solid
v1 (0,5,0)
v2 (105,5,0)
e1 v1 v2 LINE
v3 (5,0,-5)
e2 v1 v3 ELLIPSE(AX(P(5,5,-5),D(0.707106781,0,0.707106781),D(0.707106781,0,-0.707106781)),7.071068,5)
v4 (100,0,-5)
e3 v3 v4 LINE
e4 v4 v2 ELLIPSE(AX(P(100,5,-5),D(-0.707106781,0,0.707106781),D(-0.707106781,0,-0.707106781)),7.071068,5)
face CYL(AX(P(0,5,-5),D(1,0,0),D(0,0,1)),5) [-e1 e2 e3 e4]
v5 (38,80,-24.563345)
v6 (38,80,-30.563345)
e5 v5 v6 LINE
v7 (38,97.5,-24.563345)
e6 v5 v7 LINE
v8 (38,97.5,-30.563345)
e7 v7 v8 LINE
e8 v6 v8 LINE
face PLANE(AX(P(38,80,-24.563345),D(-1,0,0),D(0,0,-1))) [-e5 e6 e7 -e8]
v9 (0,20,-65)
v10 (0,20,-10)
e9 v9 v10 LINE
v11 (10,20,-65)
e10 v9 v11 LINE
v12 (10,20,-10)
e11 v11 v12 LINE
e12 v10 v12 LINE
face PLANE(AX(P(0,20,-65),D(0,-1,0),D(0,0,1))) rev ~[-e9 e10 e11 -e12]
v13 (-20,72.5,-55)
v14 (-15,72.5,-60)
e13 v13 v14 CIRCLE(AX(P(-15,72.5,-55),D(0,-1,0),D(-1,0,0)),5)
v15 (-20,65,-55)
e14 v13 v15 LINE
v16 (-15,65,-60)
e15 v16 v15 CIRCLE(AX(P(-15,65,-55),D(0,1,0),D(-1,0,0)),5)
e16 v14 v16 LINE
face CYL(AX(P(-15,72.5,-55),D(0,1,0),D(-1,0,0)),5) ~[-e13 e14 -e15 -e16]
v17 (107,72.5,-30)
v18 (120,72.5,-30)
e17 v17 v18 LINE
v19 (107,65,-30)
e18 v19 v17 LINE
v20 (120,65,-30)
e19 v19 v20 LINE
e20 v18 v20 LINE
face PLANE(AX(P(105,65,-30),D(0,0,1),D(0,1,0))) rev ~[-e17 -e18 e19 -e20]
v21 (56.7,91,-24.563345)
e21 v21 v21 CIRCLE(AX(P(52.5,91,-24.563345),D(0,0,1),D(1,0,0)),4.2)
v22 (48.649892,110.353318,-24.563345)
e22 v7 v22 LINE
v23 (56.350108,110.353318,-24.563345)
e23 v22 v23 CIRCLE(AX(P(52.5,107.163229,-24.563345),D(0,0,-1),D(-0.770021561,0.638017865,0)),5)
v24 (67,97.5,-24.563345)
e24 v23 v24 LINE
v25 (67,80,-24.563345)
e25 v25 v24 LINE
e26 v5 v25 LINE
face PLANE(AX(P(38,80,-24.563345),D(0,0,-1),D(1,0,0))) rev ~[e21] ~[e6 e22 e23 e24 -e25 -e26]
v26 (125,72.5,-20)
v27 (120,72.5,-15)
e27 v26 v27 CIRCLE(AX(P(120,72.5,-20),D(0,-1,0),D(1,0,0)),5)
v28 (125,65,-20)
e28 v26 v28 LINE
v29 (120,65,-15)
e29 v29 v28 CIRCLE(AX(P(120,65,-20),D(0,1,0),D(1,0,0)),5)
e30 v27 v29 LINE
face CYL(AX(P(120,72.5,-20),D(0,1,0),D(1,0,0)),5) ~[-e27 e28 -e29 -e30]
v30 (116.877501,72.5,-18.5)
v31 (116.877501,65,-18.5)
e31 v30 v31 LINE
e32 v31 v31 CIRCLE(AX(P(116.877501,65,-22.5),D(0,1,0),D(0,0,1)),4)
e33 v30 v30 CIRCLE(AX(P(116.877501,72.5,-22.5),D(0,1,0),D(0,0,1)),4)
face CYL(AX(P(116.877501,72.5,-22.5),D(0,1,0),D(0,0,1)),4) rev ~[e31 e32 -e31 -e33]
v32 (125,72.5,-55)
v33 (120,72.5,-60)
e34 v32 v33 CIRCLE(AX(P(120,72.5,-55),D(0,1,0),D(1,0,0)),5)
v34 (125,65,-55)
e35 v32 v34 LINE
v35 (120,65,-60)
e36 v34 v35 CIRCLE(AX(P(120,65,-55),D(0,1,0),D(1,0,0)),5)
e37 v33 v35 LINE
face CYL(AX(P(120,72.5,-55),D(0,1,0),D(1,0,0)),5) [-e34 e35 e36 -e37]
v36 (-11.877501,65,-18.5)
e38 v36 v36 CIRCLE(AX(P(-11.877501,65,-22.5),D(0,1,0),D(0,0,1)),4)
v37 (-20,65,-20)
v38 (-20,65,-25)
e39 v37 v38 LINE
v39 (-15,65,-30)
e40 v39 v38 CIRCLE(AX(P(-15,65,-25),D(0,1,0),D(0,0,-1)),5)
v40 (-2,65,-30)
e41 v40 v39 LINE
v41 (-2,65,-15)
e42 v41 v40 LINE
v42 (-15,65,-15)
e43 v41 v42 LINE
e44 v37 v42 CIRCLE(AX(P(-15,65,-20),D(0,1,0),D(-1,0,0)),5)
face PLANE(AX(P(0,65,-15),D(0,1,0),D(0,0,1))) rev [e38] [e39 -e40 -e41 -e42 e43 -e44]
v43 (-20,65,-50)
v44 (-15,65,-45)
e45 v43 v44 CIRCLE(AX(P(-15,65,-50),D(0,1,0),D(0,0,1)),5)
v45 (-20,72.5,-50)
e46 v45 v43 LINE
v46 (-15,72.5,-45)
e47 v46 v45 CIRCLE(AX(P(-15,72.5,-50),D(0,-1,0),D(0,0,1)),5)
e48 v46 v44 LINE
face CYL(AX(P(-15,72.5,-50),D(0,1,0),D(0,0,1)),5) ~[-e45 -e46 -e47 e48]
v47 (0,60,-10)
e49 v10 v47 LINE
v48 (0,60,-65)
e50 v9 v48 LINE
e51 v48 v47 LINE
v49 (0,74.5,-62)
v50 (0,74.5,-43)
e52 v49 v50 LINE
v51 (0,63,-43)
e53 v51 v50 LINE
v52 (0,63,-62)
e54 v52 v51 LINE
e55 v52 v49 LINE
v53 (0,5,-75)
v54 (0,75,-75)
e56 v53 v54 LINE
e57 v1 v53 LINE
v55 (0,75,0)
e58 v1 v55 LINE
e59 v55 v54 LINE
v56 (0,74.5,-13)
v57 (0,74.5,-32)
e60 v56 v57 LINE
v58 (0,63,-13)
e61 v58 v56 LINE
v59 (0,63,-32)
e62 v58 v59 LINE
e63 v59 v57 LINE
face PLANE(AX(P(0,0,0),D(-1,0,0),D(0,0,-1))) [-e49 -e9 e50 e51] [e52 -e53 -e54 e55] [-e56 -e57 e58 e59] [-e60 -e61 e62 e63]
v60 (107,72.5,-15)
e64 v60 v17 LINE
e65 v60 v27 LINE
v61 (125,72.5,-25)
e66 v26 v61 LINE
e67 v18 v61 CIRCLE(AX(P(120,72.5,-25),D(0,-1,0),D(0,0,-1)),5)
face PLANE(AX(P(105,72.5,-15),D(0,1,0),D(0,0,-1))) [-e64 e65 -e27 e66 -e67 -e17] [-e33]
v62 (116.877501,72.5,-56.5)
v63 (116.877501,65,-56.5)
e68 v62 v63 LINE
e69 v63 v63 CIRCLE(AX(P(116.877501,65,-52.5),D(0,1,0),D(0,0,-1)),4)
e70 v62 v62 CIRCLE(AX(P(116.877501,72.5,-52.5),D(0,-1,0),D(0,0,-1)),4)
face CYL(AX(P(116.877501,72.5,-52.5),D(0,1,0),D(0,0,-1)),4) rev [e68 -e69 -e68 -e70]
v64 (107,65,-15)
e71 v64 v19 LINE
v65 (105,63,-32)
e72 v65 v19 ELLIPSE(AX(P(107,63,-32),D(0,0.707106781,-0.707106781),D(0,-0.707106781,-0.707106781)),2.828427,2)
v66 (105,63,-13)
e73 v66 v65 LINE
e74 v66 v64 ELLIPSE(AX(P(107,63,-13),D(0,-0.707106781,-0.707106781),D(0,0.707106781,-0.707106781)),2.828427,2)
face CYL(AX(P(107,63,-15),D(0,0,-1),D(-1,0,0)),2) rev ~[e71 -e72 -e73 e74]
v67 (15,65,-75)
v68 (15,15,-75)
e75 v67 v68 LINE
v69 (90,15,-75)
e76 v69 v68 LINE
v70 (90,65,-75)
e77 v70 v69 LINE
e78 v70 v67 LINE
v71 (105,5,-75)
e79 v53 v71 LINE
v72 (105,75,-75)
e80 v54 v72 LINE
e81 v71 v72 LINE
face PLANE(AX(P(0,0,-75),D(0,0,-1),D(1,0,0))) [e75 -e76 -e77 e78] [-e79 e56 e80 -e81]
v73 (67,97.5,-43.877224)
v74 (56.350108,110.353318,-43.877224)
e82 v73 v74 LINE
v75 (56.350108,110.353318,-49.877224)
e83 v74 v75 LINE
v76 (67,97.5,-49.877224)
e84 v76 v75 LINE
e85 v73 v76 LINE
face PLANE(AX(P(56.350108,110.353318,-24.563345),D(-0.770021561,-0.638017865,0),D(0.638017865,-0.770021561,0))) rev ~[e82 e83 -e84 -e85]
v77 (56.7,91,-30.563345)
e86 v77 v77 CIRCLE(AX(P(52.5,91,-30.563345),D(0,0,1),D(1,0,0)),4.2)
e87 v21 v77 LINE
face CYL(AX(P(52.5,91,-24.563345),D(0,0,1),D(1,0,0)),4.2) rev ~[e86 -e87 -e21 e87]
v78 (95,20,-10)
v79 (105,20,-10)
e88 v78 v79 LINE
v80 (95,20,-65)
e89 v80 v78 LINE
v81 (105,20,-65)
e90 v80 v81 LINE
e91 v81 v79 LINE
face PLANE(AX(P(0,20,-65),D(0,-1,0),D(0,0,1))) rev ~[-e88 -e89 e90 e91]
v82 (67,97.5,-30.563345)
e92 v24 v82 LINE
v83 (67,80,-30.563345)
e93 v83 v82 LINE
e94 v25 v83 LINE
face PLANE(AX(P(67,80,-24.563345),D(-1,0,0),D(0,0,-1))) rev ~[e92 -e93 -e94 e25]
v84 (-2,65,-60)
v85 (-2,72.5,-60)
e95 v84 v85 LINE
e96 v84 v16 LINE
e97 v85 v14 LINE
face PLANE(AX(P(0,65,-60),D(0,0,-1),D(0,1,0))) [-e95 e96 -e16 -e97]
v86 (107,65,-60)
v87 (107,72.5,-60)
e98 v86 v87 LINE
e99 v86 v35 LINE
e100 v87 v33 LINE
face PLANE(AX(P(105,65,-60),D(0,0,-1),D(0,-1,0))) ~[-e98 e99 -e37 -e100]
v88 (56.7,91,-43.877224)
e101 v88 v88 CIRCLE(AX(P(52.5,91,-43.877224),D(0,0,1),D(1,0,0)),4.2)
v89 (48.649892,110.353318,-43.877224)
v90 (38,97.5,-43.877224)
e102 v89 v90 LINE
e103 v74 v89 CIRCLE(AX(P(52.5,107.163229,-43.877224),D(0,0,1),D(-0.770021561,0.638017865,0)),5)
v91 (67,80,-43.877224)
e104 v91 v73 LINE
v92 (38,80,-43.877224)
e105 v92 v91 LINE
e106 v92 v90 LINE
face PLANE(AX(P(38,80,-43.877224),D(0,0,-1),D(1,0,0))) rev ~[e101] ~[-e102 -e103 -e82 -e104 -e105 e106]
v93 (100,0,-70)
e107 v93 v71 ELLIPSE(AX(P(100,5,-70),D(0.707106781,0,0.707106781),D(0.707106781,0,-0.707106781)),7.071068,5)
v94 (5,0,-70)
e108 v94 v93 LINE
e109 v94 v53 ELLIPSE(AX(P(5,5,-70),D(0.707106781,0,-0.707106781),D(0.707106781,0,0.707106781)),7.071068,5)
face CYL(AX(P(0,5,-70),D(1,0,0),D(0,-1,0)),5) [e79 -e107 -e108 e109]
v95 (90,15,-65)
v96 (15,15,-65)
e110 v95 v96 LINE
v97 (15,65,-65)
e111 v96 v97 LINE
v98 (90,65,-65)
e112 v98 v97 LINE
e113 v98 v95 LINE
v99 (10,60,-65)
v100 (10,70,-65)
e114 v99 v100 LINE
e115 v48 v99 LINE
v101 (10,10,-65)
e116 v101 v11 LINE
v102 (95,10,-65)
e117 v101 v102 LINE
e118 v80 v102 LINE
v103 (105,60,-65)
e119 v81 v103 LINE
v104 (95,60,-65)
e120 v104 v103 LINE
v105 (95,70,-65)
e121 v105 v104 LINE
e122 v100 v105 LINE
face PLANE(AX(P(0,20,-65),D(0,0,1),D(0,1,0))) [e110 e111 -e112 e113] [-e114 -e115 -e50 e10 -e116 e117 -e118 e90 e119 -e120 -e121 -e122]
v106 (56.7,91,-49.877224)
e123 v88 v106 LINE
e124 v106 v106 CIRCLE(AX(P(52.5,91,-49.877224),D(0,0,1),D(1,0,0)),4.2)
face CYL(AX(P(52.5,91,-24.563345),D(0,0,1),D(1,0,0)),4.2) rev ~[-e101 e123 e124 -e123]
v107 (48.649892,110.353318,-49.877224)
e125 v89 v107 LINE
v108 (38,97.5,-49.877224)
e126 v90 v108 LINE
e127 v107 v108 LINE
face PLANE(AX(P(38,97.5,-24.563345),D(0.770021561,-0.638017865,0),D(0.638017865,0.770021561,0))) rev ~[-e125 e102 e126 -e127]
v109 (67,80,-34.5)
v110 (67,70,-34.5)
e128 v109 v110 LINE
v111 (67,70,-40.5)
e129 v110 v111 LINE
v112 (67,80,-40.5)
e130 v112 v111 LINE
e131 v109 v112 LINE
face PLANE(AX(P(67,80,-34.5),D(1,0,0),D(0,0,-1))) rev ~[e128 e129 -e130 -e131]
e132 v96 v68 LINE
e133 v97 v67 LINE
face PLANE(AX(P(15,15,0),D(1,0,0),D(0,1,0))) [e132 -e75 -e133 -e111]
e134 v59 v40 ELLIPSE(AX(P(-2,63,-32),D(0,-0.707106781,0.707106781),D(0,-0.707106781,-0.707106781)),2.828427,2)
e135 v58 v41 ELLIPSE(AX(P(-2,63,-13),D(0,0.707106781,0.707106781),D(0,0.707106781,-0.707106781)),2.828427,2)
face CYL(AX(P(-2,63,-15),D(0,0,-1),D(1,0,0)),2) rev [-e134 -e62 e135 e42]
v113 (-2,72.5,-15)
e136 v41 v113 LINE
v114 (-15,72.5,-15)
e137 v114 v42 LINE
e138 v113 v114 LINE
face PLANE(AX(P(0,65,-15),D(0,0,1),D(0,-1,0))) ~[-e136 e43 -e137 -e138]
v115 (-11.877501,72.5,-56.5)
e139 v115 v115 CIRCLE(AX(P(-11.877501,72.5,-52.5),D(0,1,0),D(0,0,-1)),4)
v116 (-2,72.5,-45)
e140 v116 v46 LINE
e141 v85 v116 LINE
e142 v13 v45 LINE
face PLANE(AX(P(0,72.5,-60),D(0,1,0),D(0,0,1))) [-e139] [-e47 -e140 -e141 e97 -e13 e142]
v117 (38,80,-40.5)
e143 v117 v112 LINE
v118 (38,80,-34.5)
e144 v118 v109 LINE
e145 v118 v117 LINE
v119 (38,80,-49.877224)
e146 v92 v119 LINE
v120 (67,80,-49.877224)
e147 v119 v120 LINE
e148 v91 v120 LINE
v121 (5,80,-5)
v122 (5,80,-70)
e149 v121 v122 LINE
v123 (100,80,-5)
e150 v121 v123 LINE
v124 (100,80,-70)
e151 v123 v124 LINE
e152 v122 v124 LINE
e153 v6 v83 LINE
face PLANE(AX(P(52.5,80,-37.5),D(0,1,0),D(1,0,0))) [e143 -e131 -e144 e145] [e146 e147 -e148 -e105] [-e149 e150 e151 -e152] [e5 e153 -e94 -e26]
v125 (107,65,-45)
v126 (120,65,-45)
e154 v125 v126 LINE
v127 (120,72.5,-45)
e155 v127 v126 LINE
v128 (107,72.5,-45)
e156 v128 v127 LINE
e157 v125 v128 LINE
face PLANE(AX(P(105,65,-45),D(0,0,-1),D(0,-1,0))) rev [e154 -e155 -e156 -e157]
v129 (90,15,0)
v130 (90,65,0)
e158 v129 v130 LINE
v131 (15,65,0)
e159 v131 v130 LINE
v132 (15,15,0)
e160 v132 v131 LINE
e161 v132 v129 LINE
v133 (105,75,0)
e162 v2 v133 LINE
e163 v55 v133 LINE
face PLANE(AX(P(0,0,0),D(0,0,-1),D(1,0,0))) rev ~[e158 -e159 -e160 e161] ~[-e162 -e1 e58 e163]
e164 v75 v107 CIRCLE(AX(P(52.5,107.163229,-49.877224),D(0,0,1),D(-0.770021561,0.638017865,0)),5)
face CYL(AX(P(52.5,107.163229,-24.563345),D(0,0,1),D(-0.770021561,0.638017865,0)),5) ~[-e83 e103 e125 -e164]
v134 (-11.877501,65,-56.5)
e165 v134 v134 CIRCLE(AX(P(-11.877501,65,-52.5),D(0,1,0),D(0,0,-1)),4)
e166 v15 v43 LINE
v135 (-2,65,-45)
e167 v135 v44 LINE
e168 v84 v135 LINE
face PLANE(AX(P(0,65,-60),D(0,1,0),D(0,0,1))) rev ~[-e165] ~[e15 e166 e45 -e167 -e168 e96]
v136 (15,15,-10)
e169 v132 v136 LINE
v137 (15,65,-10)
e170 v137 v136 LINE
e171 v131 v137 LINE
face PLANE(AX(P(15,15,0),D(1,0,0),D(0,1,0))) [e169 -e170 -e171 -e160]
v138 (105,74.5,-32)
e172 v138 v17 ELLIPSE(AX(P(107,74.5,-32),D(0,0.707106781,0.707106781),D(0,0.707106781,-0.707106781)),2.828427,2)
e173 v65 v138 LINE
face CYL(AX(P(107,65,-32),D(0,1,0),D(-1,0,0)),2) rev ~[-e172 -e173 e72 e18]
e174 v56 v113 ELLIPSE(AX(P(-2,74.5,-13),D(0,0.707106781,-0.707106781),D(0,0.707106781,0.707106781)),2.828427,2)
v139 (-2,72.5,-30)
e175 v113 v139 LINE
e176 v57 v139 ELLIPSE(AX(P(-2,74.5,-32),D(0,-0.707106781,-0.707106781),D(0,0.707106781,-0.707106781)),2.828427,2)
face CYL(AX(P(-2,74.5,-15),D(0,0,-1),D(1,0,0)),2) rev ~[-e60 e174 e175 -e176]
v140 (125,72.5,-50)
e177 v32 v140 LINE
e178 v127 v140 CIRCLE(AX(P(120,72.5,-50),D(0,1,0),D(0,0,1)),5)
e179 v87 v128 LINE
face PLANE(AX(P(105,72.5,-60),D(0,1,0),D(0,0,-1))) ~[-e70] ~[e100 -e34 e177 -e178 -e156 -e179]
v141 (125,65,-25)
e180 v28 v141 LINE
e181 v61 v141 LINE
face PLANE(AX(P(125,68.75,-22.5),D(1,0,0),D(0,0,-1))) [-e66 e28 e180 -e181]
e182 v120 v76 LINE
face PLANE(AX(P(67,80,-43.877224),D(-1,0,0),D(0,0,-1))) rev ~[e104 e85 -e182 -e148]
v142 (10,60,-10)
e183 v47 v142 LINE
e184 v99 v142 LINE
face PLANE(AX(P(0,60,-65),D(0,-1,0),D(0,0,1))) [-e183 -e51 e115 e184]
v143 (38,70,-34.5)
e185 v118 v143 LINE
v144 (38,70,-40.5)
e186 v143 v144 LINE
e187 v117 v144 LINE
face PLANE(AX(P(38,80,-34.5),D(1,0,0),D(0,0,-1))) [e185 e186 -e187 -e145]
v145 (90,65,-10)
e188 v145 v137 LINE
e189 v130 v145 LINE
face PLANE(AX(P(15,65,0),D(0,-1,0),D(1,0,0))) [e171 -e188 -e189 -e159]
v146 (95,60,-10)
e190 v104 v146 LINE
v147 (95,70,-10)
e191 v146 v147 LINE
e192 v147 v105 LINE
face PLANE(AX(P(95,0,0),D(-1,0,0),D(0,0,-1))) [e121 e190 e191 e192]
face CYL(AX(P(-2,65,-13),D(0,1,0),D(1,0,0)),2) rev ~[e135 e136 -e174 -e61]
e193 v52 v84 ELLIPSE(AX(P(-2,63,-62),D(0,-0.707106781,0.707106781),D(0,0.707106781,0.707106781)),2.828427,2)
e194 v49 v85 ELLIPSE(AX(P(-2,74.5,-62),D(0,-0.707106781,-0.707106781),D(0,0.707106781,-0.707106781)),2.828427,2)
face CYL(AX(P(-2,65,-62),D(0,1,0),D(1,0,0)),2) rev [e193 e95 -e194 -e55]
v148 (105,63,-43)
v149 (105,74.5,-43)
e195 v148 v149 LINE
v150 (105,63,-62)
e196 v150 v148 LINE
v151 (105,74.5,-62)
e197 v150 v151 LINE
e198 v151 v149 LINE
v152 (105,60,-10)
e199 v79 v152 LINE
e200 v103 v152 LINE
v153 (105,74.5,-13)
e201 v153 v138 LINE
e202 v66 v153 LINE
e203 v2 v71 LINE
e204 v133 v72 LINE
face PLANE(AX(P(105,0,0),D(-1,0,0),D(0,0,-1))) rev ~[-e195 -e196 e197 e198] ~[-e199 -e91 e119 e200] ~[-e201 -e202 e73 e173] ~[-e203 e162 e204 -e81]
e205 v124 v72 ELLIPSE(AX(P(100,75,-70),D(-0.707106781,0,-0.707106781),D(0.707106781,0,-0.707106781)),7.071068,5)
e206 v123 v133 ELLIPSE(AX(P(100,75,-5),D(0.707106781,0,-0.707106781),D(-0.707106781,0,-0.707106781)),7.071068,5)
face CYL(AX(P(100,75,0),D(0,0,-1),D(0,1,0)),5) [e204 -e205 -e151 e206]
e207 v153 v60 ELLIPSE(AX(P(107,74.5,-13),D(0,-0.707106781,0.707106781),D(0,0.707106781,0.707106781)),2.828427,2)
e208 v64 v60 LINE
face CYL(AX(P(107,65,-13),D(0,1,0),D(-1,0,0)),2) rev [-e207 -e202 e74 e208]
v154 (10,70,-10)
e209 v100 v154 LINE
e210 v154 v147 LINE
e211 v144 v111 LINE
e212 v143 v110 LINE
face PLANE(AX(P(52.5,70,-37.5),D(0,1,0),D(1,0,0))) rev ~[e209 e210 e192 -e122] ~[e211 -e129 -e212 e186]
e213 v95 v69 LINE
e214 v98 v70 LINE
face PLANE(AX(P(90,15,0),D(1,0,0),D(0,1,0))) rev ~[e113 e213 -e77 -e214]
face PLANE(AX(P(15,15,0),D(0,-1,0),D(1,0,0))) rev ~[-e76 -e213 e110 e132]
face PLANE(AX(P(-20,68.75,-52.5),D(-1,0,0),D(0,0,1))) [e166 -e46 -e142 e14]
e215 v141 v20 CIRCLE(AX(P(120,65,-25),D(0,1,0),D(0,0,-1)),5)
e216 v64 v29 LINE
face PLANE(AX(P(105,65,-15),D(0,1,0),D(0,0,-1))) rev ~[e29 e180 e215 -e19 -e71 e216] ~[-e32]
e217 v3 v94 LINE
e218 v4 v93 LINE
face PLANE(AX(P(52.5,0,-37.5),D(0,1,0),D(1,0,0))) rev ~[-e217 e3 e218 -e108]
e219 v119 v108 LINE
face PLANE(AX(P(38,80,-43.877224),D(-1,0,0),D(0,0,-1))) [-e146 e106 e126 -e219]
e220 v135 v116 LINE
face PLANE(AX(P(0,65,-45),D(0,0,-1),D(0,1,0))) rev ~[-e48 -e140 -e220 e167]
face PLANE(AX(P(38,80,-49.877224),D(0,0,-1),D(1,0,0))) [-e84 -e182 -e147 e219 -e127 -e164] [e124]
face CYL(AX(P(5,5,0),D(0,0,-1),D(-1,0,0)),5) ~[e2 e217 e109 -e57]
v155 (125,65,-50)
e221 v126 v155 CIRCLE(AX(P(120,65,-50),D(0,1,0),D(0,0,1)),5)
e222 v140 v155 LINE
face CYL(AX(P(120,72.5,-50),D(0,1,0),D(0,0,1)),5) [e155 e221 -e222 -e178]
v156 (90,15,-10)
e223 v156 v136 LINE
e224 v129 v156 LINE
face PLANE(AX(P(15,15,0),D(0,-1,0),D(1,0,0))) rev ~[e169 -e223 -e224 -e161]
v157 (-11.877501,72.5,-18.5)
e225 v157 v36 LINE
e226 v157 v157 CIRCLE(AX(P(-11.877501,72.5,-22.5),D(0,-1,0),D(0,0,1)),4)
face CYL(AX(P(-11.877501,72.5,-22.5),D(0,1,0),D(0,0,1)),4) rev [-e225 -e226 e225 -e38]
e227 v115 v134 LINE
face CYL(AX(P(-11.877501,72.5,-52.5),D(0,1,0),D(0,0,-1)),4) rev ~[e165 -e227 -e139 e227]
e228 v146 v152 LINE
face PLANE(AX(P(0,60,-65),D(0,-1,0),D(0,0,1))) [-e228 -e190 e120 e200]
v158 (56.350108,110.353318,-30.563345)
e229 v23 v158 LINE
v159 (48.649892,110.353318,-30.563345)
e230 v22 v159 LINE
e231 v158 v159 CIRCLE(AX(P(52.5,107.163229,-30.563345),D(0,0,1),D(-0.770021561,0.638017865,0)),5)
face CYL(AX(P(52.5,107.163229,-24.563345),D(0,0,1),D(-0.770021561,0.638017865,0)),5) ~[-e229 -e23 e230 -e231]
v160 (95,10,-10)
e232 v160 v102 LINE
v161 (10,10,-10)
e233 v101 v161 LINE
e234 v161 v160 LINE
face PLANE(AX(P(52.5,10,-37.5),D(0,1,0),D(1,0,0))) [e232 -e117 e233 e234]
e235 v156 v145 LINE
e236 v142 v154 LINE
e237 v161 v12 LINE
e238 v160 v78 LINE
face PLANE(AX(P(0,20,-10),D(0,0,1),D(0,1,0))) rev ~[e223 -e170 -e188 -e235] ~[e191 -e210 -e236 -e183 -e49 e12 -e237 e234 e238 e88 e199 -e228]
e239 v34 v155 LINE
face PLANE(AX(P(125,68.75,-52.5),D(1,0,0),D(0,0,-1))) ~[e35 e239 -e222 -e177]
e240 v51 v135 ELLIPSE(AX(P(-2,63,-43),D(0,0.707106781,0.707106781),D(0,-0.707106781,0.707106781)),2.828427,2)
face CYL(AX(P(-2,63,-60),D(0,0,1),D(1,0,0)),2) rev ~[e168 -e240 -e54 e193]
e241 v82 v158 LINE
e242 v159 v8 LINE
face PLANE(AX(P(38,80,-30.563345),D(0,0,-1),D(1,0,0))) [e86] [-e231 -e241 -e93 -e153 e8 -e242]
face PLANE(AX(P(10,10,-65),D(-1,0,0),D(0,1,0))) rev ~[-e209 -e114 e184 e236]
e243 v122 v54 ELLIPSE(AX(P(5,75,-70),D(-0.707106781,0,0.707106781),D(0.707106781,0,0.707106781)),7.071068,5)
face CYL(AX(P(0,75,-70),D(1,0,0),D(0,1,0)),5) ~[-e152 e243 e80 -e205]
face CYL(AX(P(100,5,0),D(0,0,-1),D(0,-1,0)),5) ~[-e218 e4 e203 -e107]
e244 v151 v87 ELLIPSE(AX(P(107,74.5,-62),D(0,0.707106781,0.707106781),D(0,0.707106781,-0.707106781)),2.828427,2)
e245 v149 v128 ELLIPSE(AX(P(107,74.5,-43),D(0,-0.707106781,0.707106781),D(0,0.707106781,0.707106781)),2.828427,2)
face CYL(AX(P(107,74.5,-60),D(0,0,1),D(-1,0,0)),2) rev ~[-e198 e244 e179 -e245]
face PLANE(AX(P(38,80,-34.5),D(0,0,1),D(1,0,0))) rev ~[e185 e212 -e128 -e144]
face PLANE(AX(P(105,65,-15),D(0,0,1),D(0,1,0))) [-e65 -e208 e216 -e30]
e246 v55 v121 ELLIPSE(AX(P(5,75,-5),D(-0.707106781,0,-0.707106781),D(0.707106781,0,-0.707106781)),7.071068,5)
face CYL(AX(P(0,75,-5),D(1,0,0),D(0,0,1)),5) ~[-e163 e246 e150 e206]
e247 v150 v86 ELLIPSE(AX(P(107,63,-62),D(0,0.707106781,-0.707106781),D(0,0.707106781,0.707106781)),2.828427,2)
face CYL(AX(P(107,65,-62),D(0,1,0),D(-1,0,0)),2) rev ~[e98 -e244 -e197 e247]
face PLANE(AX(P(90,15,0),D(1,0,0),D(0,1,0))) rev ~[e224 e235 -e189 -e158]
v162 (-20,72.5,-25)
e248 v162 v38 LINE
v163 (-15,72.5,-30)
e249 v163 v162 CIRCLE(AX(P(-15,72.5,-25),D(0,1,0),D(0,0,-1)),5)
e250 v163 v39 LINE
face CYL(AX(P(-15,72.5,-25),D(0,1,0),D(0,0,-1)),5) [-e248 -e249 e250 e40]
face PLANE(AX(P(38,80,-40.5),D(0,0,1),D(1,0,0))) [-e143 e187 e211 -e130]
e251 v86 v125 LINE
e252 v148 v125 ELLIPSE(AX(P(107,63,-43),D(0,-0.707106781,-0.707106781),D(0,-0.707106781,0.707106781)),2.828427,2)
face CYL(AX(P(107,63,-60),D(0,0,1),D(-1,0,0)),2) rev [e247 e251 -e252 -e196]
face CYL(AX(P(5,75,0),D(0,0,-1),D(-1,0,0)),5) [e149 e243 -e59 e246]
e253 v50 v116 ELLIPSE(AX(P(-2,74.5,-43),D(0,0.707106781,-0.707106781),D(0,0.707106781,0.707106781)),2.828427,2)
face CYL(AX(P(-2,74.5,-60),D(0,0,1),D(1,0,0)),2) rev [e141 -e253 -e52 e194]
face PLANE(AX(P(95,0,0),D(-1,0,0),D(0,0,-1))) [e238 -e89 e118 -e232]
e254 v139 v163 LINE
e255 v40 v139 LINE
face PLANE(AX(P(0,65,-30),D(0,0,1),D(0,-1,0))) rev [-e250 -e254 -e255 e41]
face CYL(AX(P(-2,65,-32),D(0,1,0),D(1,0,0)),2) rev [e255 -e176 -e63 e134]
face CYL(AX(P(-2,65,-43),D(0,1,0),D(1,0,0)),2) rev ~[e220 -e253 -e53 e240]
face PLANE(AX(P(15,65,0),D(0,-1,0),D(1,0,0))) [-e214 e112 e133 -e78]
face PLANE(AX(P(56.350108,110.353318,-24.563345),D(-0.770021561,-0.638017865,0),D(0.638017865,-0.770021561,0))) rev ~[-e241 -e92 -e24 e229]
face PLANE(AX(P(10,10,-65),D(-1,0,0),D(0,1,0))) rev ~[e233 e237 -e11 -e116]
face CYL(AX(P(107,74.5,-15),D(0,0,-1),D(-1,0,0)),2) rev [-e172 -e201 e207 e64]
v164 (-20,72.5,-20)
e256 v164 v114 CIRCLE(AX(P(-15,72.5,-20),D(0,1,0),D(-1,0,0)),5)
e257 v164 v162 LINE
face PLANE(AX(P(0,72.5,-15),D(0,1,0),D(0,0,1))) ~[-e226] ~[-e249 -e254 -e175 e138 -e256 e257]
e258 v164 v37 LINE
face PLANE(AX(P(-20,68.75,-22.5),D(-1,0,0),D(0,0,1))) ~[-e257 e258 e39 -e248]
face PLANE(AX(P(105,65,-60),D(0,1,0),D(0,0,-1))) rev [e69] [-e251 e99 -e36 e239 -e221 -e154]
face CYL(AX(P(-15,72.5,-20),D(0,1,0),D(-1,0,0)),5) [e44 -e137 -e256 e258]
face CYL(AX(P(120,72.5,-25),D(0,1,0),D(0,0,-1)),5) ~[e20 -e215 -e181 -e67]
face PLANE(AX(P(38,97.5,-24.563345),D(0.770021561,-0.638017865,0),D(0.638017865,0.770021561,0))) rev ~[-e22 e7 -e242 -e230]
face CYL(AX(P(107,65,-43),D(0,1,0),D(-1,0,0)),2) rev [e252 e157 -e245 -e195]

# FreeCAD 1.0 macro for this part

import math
import FreeCAD as App
import Part
import Sketcher

V = App.Vector


def edges_at(feature, points):
    """Names of the edges that pass closest to the given points."""
    edges = feature.Shape.Edges
    near = lambda p: min(range(len(edges)), key=lambda i: edges[i].distToShape(Part.Vertex(*p))[0])
    return sorted({f"Edge{near(p) + 1}" for p in points})


def faces_at(feature, points):
    """Names of the faces that lie closest to the given points."""
    faces = feature.Shape.Faces
    near = lambda p: min(range(len(faces)), key=lambda i: faces[i].distToShape(Part.Vertex(*p))[0])
    return sorted({f"Face{near(p) + 1}" for p in points})

doc = App.newDocument("Part")
params = doc.addObject("Spreadsheet::Sheet", "Params")
for row, (alias, value) in enumerate([
    ("sketch1_width", "105 mm"),
    ("sketch1_height", "75 mm"),
    ("pad1_length", "80 mm"),
    ("thickness_wall", "10 mm"),
    ("sketch2_width", "10 mm"),
    ("sketch2_height", "60 mm"),
    ("pad2_length", "60 mm"),
    ("fillet_radius", "5 mm"),
    ("sketch3_width", "75 mm"),
    ("sketch3_height", "50 mm"),
    ("sketch4_width", "40 mm"),
    ("sketch4_height", "55 mm"),
    ("sketch5_height", "15 mm"),
    ("sketch5_width", "7.5 mm"),
    ("pad3_length", "20 mm"),
    ("sketch6_diameter", "8 mm"),
    ("sketch6_radius", "5 mm"),
    ("sketch7_height", "15 mm"),
    ("sketch7_width", "7.5 mm"),
    ("pad4_length", "20 mm"),
    ("sketch8_diameter", "8 mm"),
    ("sketch8_radius", "5 mm"),
    ("fillet2_radius", "2 mm"),
    ("sketch9_width", "29 mm"),
    ("sketch9_height", "6 mm"),
    ("pocket5_length", "15 mm"),
    ("sketch10_width", "29 mm"),
    ("sketch10_height", "6 mm"),
    ("pad5_length", "35 mm"),
    ("sketch11_radius", "5 mm"),
    ("sketch11_diameter", "8.4 mm"),
    ("sketch11_width", "29 mm"),
    ("sketch11_height", "17.5 mm"),
    ("pocket6_length", "35 mm"),
], start=1):
    params.set(f"A{row}", alias)
    params.set(f"B{row}", "=" + value)
    params.setAlias(f"B{row}", alias)

body = doc.addObject("PartDesign::Body", "Body")

# Sketch on XZ plane
sketch1 = body.newObject("Sketcher::SketchObject", "Sketch")
sketch1.AttachmentSupport = (doc.getObject("XZ_Plane"), [""])
sketch1.MapMode = "FlatFace"
sketch1.addGeometry([
    Part.LineSegment(V(0, -75, 0), V(0, 0, 0)),
    Part.LineSegment(V(0, 0, 0), V(105, 0, 0)),
    Part.LineSegment(V(105, 0, 0), V(105, -75, 0)),
    Part.LineSegment(V(105, -75, 0), V(0, -75, 0)),
], False)
sketch1.addConstraint([
    Sketcher.Constraint("Coincident", 0, 2, 1, 1),
    Sketcher.Constraint("Coincident", 1, 2, 2, 1),
    Sketcher.Constraint("Coincident", 2, 2, 3, 1),
    Sketcher.Constraint("Coincident", 3, 2, 0, 1),
    Sketcher.Constraint("Vertical", 0),
    Sketcher.Constraint("Horizontal", 1),
    Sketcher.Constraint("Vertical", 2),
    Sketcher.Constraint("Horizontal", 3),
    Sketcher.Constraint("Coincident", 0, 2, -1, 1),
    Sketcher.Constraint("DistanceX", 1, 1, 1, 2, 105.0),
    Sketcher.Constraint("DistanceY", 0, 1, 0, 2, 75.0),
])
sketch1.setExpression("Constraints[9]", "Params.sketch1_width")
sketch1.setExpression("Constraints[10]", "Params.sketch1_height")
pad1 = body.newObject("PartDesign::Pad", "Pad")
pad1.Profile = sketch1
pad1.setExpression("Length", "Params.pad1_length")
pad1.Reversed = True
doc.recompute()

thickness = body.newObject("PartDesign::Thickness", "Thickness")
thickness.Base = (pad1, faces_at(pad1, [(0, 40, -37.5)]))
thickness.setExpression("Value", "Params.thickness_wall")
thickness.Reversed = True
thickness.Join = "Intersection"

# Sketch on XY plane
sketch2 = body.newObject("Sketcher::SketchObject", "Sketch001")
sketch2.AttachmentSupport = (doc.getObject("XY_Plane"), [""])
sketch2.MapMode = "FlatFace"
sketch2.AttachmentOffset = App.Placement(V(0, 0, -65), App.Rotation())
sketch2.addGeometry([
    Part.LineSegment(V(0, 70, 0), V(0, 10, 0)),
    Part.LineSegment(V(0, 10, 0), V(10, 10, 0)),
    Part.LineSegment(V(10, 10, 0), V(10, 70, 0)),
    Part.LineSegment(V(10, 70, 0), V(0, 70, 0)),
], False)
sketch2.addConstraint([
    Sketcher.Constraint("Coincident", 0, 2, 1, 1),
    Sketcher.Constraint("Coincident", 1, 2, 2, 1),
    Sketcher.Constraint("Coincident", 2, 2, 3, 1),
    Sketcher.Constraint("Coincident", 3, 2, 0, 1),
    Sketcher.Constraint("Vertical", 0),
    Sketcher.Constraint("Horizontal", 1),
    Sketcher.Constraint("Vertical", 2),
    Sketcher.Constraint("Horizontal", 3),
    Sketcher.Constraint("PointOnObject", 0, 2, -2),
    Sketcher.Constraint("DistanceX", 1, 1, 1, 2, 10.0),
    Sketcher.Constraint("DistanceY", 0, 2, 0, 1, 60.0),
    Sketcher.Constraint("DistanceY", -1, 1, 0, 2, 10.0),
])
sketch2.setExpression("Constraints[9]", "Params.sketch2_width")
sketch2.setExpression("Constraints[10]", "Params.sketch2_height")
pad2 = body.newObject("PartDesign::Pad", "Pad001")
pad2.Profile = sketch2
pad2.setExpression("Length", "Params.pad2_length")
doc.recompute()

fillet = body.newObject("PartDesign::Fillet", "Fillet")
fillet.Base = (pad2, edges_at(pad2, [
    (105, 80, -37.5),
    (52.5, 80, -75),
    (0, 80, -37.5),
    (52.5, 0, -75),
    (105, 0, -37.5),
    (52.5, 0, 0),
    (0, 0, -37.5),
    (52.5, 80, 0),
]))
fillet.setExpression("Radius", "Params.fillet_radius")

# Sketch on XY plane
sketch3 = body.newObject("Sketcher::SketchObject", "Sketch002")
sketch3.AttachmentSupport = (doc.getObject("XY_Plane"), [""])
sketch3.MapMode = "FlatFace"
sketch3.addGeometry([
    Part.LineSegment(V(15, 65, 0), V(15, 15, 0)),
    Part.LineSegment(V(15, 15, 0), V(90, 15, 0)),
    Part.LineSegment(V(90, 15, 0), V(90, 65, 0)),
    Part.LineSegment(V(90, 65, 0), V(15, 65, 0)),
], False)
sketch3.addConstraint([
    Sketcher.Constraint("Coincident", 0, 2, 1, 1),
    Sketcher.Constraint("Coincident", 1, 2, 2, 1),
    Sketcher.Constraint("Coincident", 2, 2, 3, 1),
    Sketcher.Constraint("Coincident", 3, 2, 0, 1),
    Sketcher.Constraint("Vertical", 0),
    Sketcher.Constraint("Horizontal", 1),
    Sketcher.Constraint("Vertical", 2),
    Sketcher.Constraint("Horizontal", 3),
    Sketcher.Constraint("DistanceX", 1, 1, 1, 2, 75.0),
    Sketcher.Constraint("DistanceY", 0, 2, 0, 1, 50.0),
    Sketcher.Constraint("DistanceX", -1, 1, 0, 2, 15.0),
    Sketcher.Constraint("DistanceY", -1, 1, 0, 2, 15.0),
])
sketch3.setExpression("Constraints[8]", "Params.sketch3_width")
sketch3.setExpression("Constraints[9]", "Params.sketch3_height")
pocket1 = body.newObject("PartDesign::Pocket", "Pocket")
pocket1.Profile = sketch3
pocket1.Type = "ThroughAll"

# Sketch on YZ plane
sketch4 = body.newObject("Sketcher::SketchObject", "Sketch003")
sketch4.AttachmentSupport = (doc.getObject("YZ_Plane"), [""])
sketch4.MapMode = "FlatFace"
sketch4.addGeometry([
    Part.LineSegment(V(60, -65, 0), V(20, -65, 0)),
    Part.LineSegment(V(20, -65, 0), V(20, -10, 0)),
    Part.LineSegment(V(20, -10, 0), V(60, -10, 0)),
    Part.LineSegment(V(60, -10, 0), V(60, -65, 0)),
], False)
sketch4.addConstraint([
    Sketcher.Constraint("Coincident", 0, 2, 1, 1),
    Sketcher.Constraint("Coincident", 1, 2, 2, 1),
    Sketcher.Constraint("Coincident", 2, 2, 3, 1),
    Sketcher.Constraint("Coincident", 3, 2, 0, 1),
    Sketcher.Constraint("Horizontal", 0),
    Sketcher.Constraint("Vertical", 1),
    Sketcher.Constraint("Horizontal", 2),
    Sketcher.Constraint("Vertical", 3),
    Sketcher.Constraint("DistanceX", 0, 2, 0, 1, 40.0),
    Sketcher.Constraint("DistanceY", 1, 1, 1, 2, 55.0),
    Sketcher.Constraint("DistanceX", -1, 1, 0, 2, 20.0),
    Sketcher.Constraint("DistanceY", 0, 2, -1, 1, 65.0),
])
sketch4.setExpression("Constraints[8]", "Params.sketch4_width")
sketch4.setExpression("Constraints[9]", "Params.sketch4_height")
pocket2 = body.newObject("PartDesign::Pocket", "Pocket001")
pocket2.Profile = sketch4
pocket2.Type = "ThroughAll"
pocket2.Reversed = True

# Sketch on YZ plane
sketch5 = body.newObject("Sketcher::SketchObject", "Sketch004")
sketch5.AttachmentSupport = (doc.getObject("YZ_Plane"), [""])
sketch5.MapMode = "FlatFace"
sketch5.AttachmentOffset = App.Placement(V(0, 0, 105), App.Rotation())
sketch5.addGeometry([
    Part.LineSegment(V(72.5, -15, 0), V(65, -15, 0)),
    Part.LineSegment(V(65, -15, 0), V(65, -30, 0)),
    Part.LineSegment(V(65, -30, 0), V(72.5, -30, 0)),
    Part.LineSegment(V(72.5, -30, 0), V(72.5, -15, 0)),
], False)
sketch5.addConstraint([
    Sketcher.Constraint("Coincident", 0, 2, 1, 1),
    Sketcher.Constraint("Coincident", 1, 2, 2, 1),
    Sketcher.Constraint("Coincident", 2, 2, 3, 1),
    Sketcher.Constraint("Coincident", 3, 2, 0, 1),
    Sketcher.Constraint("Horizontal", 0),
    Sketcher.Constraint("Vertical", 1),
    Sketcher.Constraint("Horizontal", 2),
    Sketcher.Constraint("Vertical", 3),
    Sketcher.Constraint("DistanceY", 1, 2, 1, 1, 15.0),
    Sketcher.Constraint("DistanceX", 0, 2, 0, 1, 7.5),
    Sketcher.Constraint("DistanceX", -1, 1, 0, 2, 65.0),
    Sketcher.Constraint("DistanceY", 0, 2, -1, 1, 15.0),
])
sketch5.setExpression("Constraints[8]", "Params.sketch5_height")
sketch5.setExpression("Constraints[9]", "Params.sketch5_width")
pad3 = body.newObject("PartDesign::Pad", "Pad002")
pad3.Profile = sketch5
pad3.setExpression("Length", "Params.pad3_length")

# Sketch on XZ plane
sketch6 = body.newObject("Sketcher::SketchObject", "Sketch005")
sketch6.AttachmentSupport = (doc.getObject("XZ_Plane"), [""])
sketch6.MapMode = "FlatFace"
sketch6.AttachmentOffset = App.Placement(V(0, 0, -72.5), App.Rotation())
sketch6.addGeometry([
    Part.LineSegment(V(125, -30, 0), V(120, -30, 0)),  # 0
    Part.ArcOfCircle(Part.Circle(V(120, -25, 0), V(0, 0, 1), 5), math.radians(-90), math.radians(0)),  # 1
    Part.LineSegment(V(125, -25, 0), V(125, -30, 0)),  # 2
    Part.Circle(V(116.877501, -22.5, 0), V(0, 0, 1), 4),  # 3
    Part.ArcOfCircle(Part.Circle(V(120, -20, 0), V(0, 0, 1), 5), math.radians(0), math.radians(90)),  # 4
    Part.LineSegment(V(120, -15, 0), V(125, -15, 0)),  # 5
    Part.LineSegment(V(125, -15, 0), V(125, -20, 0)),  # 6
], False)
sketch6.addConstraint([
    Sketcher.Constraint("Tangent", 0, 2, 1, 1),
    Sketcher.Constraint("Tangent", 1, 2, 2, 1),
    Sketcher.Constraint("Coincident", 2, 2, 0, 1),
    Sketcher.Constraint("Tangent", 4, 2, 5, 1),
    Sketcher.Constraint("Coincident", 5, 2, 6, 1),
    Sketcher.Constraint("Tangent", 6, 2, 4, 1),
    Sketcher.Constraint("Horizontal", 0),
    Sketcher.Constraint("Vertical", 2),
    Sketcher.Constraint("Horizontal", 5),
    Sketcher.Constraint("Vertical", 6),
    Sketcher.Constraint("Equal", 1, 4),
    Sketcher.Constraint("Vertical", 1, 3, 4, 3),
    Sketcher.Constraint("Diameter", 3, 8.0),
    Sketcher.Constraint("Radius", 1, 5.0),
    Sketcher.Constraint("DistanceX", -1, 1, 1, 3, 120.0),
    Sketcher.Constraint("DistanceY", 1, 3, -1, 1, 25.0),
    Sketcher.Constraint("DistanceY", 4, 3, -1, 1, 20.0),
    Sketcher.Constraint("DistanceY", 3, 3, -1, 1, 22.5),
    Sketcher.Constraint("DistanceX", -1, 1, 3, 3, 116.877501),
])
sketch6.setExpression("Constraints[12]", "Params.sketch6_diameter")
sketch6.setExpression("Constraints[13]", "Params.sketch6_radius")
pocket3 = body.newObject("PartDesign::Pocket", "Pocket002")
pocket3.Profile = sketch6
pocket3.Type = "ThroughAll"
pocket3.Reversed = True
doc.recompute()

datumplane = body.newObject("PartDesign::Plane", "DatumPlane")
datumplane.AttachmentSupport = (doc.getObject("YZ_Plane"), [""])
datumplane.MapMode = "FlatFace"
datumplane.AttachmentOffset = App.Placement(V(0, 0, 52.5), App.Rotation())
mirrored = body.newObject("PartDesign::Mirrored", "Mirrored")
mirrored.Originals = [pad3, pocket3]
mirrored.MirrorPlane = (datumplane, [""])
body.Tip = mirrored
doc.recompute()

datumplane2 = body.newObject("PartDesign::Plane", "DatumPlane001")
datumplane2.AttachmentSupport = (doc.getObject("XY_Plane"), [""])
datumplane2.MapMode = "FlatFace"
datumplane2.AttachmentOffset = App.Placement(V(0, 0, -37.5), App.Rotation())
mirrored2 = body.newObject("PartDesign::Mirrored", "Mirrored001")
mirrored2.Originals = [pad3, pocket3]
mirrored2.MirrorPlane = (datumplane2, [""])
body.Tip = mirrored2

# Sketch on YZ plane
sketch7 = body.newObject("Sketcher::SketchObject", "Sketch006")
sketch7.AttachmentSupport = (doc.getObject("YZ_Plane"), [""])
sketch7.MapMode = "FlatFace"
sketch7.addGeometry([
    Part.LineSegment(V(72.5, -60, 0), V(65, -60, 0)),
    Part.LineSegment(V(65, -60, 0), V(65, -45, 0)),
    Part.LineSegment(V(65, -45, 0), V(72.5, -45, 0)),
    Part.LineSegment(V(72.5, -45, 0), V(72.5, -60, 0)),
], False)
sketch7.addConstraint([
    Sketcher.Constraint("Coincident", 0, 2, 1, 1),
    Sketcher.Constraint("Coincident", 1, 2, 2, 1),
    Sketcher.Constraint("Coincident", 2, 2, 3, 1),
    Sketcher.Constraint("Coincident", 3, 2, 0, 1),
    Sketcher.Constraint("Horizontal", 0),
    Sketcher.Constraint("Vertical", 1),
    Sketcher.Constraint("Horizontal", 2),
    Sketcher.Constraint("Vertical", 3),
    Sketcher.Constraint("DistanceY", 1, 1, 1, 2, 15.0),
    Sketcher.Constraint("DistanceX", 0, 2, 0, 1, 7.5),
    Sketcher.Constraint("DistanceX", -1, 1, 0, 2, 65.0),
    Sketcher.Constraint("DistanceY", 0, 2, -1, 1, 60.0),
])
sketch7.setExpression("Constraints[8]", "Params.sketch7_height")
sketch7.setExpression("Constraints[9]", "Params.sketch7_width")
pad4 = body.newObject("PartDesign::Pad", "Pad003")
pad4.Profile = sketch7
pad4.setExpression("Length", "Params.pad4_length")
pad4.Reversed = True

# Sketch on XZ plane
sketch8 = body.newObject("Sketcher::SketchObject", "Sketch007")
sketch8.AttachmentSupport = (doc.getObject("XZ_Plane"), [""])
sketch8.MapMode = "FlatFace"
sketch8.AttachmentOffset = App.Placement(V(0, 0, -72.5), App.Rotation())
sketch8.addGeometry([
    Part.LineSegment(V(-20, -45, 0), V(-15, -45, 0)),  # 0
    Part.ArcOfCircle(Part.Circle(V(-15, -50, 0), V(0, 0, 1), 5), math.radians(90), math.radians(180)),  # 1
    Part.LineSegment(V(-20, -50, 0), V(-20, -45, 0)),  # 2
    Part.Circle(V(-11.877501, -52.5, 0), V(0, 0, 1), 4),  # 3
    Part.ArcOfCircle(Part.Circle(V(-15, -55, 0), V(0, 0, 1), 5), math.radians(180), math.radians(270)),  # 4
    Part.LineSegment(V(-15, -60, 0), V(-20, -60, 0)),  # 5
    Part.LineSegment(V(-20, -60, 0), V(-20, -55, 0)),  # 6
], False)
sketch8.addConstraint([
    Sketcher.Constraint("Tangent", 0, 2, 1, 1),
    Sketcher.Constraint("Tangent", 1, 2, 2, 1),
    Sketcher.Constraint("Coincident", 2, 2, 0, 1),
    Sketcher.Constraint("Tangent", 4, 2, 5, 1),
    Sketcher.Constraint("Coincident", 5, 2, 6, 1),
    Sketcher.Constraint("Tangent", 6, 2, 4, 1),
    Sketcher.Constraint("Horizontal", 0),
    Sketcher.Constraint("Vertical", 2),
    Sketcher.Constraint("Horizontal", 5),
    Sketcher.Constraint("Vertical", 6),
    Sketcher.Constraint("Equal", 1, 4),
    Sketcher.Constraint("Vertical", 1, 3, 4, 3),
    Sketcher.Constraint("Diameter", 3, 8.0),
    Sketcher.Constraint("Radius", 1, 5.0),
    Sketcher.Constraint("DistanceX", 1, 3, -1, 1, 15.0),
    Sketcher.Constraint("DistanceY", 1, 3, -1, 1, 50.0),
    Sketcher.Constraint("DistanceY", 4, 3, -1, 1, 55.0),
    Sketcher.Constraint("DistanceY", 3, 3, -1, 1, 52.5),
    Sketcher.Constraint("DistanceX", 3, 3, -1, 1, 11.877501),
])
sketch8.setExpression("Constraints[12]", "Params.sketch8_diameter")
sketch8.setExpression("Constraints[13]", "Params.sketch8_radius")
pocket4 = body.newObject("PartDesign::Pocket", "Pocket003")
pocket4.Profile = sketch8
pocket4.Type = "ThroughAll"
pocket4.Reversed = True
doc.recompute()

fillet2 = body.newObject("PartDesign::Fillet", "Fillet001")
fillet2.Base = (pocket4, edges_at(pocket4, [
    (105, 68.75, -15),
    (105, 65, -22.5),
    (105, 68.75, -30),
    (105, 72.5, -22.5),
    (0, 68.75, -15),
    (0, 65, -22.5),
    (0, 68.75, -30),
    (0, 72.5, -22.5),
    (0, 68.75, -60),
    (0, 65, -52.5),
    (0, 68.75, -45),
    (0, 72.5, -52.5),
    (105, 68.75, -60),
    (105, 65, -52.5),
    (105, 68.75, -45),
    (105, 72.5, -52.5),
]))
fillet2.setExpression("Radius", "Params.fillet2_radius")

# Sketch on XZ plane
sketch9 = body.newObject("Sketcher::SketchObject", "Sketch008")
sketch9.AttachmentSupport = (doc.getObject("XZ_Plane"), [""])
sketch9.MapMode = "FlatFace"
sketch9.AttachmentOffset = App.Placement(V(0, 0, -80), App.Rotation())
sketch9.addGeometry([
    Part.LineSegment(V(38, -40.5, 0), V(38, -34.5, 0)),
    Part.LineSegment(V(38, -34.5, 0), V(67, -34.5, 0)),
    Part.LineSegment(V(67, -34.5, 0), V(67, -40.5, 0)),
    Part.LineSegment(V(67, -40.5, 0), V(38, -40.5, 0)),
], False)
sketch9.addConstraint([
    Sketcher.Constraint("Coincident", 0, 2, 1, 1),
    Sketcher.Constraint("Coincident", 1, 2, 2, 1),
    Sketcher.Constraint("Coincident", 2, 2, 3, 1),
    Sketcher.Constraint("Coincident", 3, 2, 0, 1),
    Sketcher.Constraint("Vertical", 0),
    Sketcher.Constraint("Horizontal", 1),
    Sketcher.Constraint("Vertical", 2),
    Sketcher.Constraint("Horizontal", 3),
    Sketcher.Constraint("DistanceX", 1, 1, 1, 2, 29.0),
    Sketcher.Constraint("DistanceY", 0, 1, 0, 2, 6.0),
    Sketcher.Constraint("DistanceX", -1, 1, 0, 2, 38.0),
    Sketcher.Constraint("DistanceY", 0, 2, -1, 1, 34.5),
])
sketch9.setExpression("Constraints[8]", "Params.sketch9_width")
sketch9.setExpression("Constraints[9]", "Params.sketch9_height")
pocket5 = body.newObject("PartDesign::Pocket", "Pocket004")
pocket5.Profile = sketch9
pocket5.setExpression("Length", "Params.pocket5_length")
pocket5.Reversed = True

# Sketch on XZ plane
sketch10 = body.newObject("Sketcher::SketchObject", "Sketch009")
sketch10.AttachmentSupport = (doc.getObject("XZ_Plane"), [""])
sketch10.MapMode = "FlatFace"
sketch10.AttachmentOffset = App.Placement(V(0, 0, -80), App.Rotation())
sketch10.addGeometry([
    Part.LineSegment(V(38, -49.877224, 0), V(38, -43.877224, 0)),  # 0
    Part.LineSegment(V(38, -43.877224, 0), V(67, -43.877224, 0)),  # 1
    Part.LineSegment(V(67, -43.877224, 0), V(67, -49.877224, 0)),  # 2
    Part.LineSegment(V(67, -49.877224, 0), V(38, -49.877224, 0)),  # 3
    Part.LineSegment(V(38, -30.563345, 0), V(38, -24.563345, 0)),  # 4
    Part.LineSegment(V(38, -24.563345, 0), V(67, -24.563345, 0)),  # 5
    Part.LineSegment(V(67, -24.563345, 0), V(67, -30.563345, 0)),  # 6
    Part.LineSegment(V(67, -30.563345, 0), V(38, -30.563345, 0)),  # 7
], False)
sketch10.addConstraint([
    Sketcher.Constraint("Coincident", 0, 2, 1, 1),
    Sketcher.Constraint("Coincident", 1, 2, 2, 1),
    Sketcher.Constraint("Coincident", 2, 2, 3, 1),
    Sketcher.Constraint("Coincident", 3, 2, 0, 1),
    Sketcher.Constraint("Coincident", 4, 2, 5, 1),
    Sketcher.Constraint("Coincident", 5, 2, 6, 1),
    Sketcher.Constraint("Coincident", 6, 2, 7, 1),
    Sketcher.Constraint("Coincident", 7, 2, 4, 1),
    Sketcher.Constraint("Vertical", 0),
    Sketcher.Constraint("Horizontal", 1),
    Sketcher.Constraint("Vertical", 2),
    Sketcher.Constraint("Horizontal", 3),
    Sketcher.Constraint("Vertical", 4),
    Sketcher.Constraint("Horizontal", 5),
    Sketcher.Constraint("Vertical", 6),
    Sketcher.Constraint("Horizontal", 7),
    Sketcher.Constraint("Vertical", 3, 2, 4, 2),
    Sketcher.Constraint("Vertical", 2, 2, 5, 2),
    Sketcher.Constraint("Equal", 2, 4),
    Sketcher.Constraint("DistanceX", 1, 1, 1, 2, 29.0),
    Sketcher.Constraint("DistanceY", 0, 1, 0, 2, 6.0),
    Sketcher.Constraint("DistanceX", -1, 1, 0, 2, 38.0),
    Sketcher.Constraint("DistanceY", 0, 2, 4, 2, 19.313879),
    Sketcher.Constraint("DistanceY", 0, 2, -1, 1, 43.877224),
])
sketch10.setExpression("Constraints[19]", "Params.sketch10_width")
sketch10.setExpression("Constraints[20]", "Params.sketch10_height")
pad5 = body.newObject("PartDesign::Pad", "Pad004")
pad5.Profile = sketch10
pad5.setExpression("Length", "Params.pad5_length")
pad5.Reversed = True

# Sketch on XY plane
sketch11 = body.newObject("Sketcher::SketchObject", "Sketch010")
sketch11.AttachmentSupport = (doc.getObject("XY_Plane"), [""])
sketch11.MapMode = "FlatFace"
sketch11.AttachmentOffset = App.Placement(V(0, 0, -24.563345), App.Rotation())
sketch11.addGeometry([
    Part.LineSegment(V(38, 115, 0), V(38, 97.5, 0)),  # 0
    Part.LineSegment(V(38, 97.5, 0), V(48.649892, 110.353318, 0)),  # 1
    Part.ArcOfCircle(Part.Circle(V(52.5, 107.163229, 0), V(0, 0, 1), 5), math.radians(39.644175), math.radians(140.355825)),  # 2
    Part.LineSegment(V(56.350108, 110.353318, 0), V(67, 97.5, 0)),  # 3
    Part.LineSegment(V(67, 97.5, 0), V(67, 115, 0)),  # 4
    Part.LineSegment(V(67, 115, 0), V(38, 115, 0)),  # 5
    Part.Circle(V(52.5, 91, 0), V(0, 0, 1), 4.2),  # 6
], False)
sketch11.addConstraint([
    Sketcher.Constraint("Coincident", 0, 2, 1, 1),
    Sketcher.Constraint("Tangent", 1, 2, 2, 2),
    Sketcher.Constraint("Tangent", 2, 1, 3, 1),
    Sketcher.Constraint("Coincident", 3, 2, 4, 1),
    Sketcher.Constraint("Coincident", 4, 2, 5, 1),
    Sketcher.Constraint("Coincident", 5, 2, 0, 1),
    Sketcher.Constraint("Vertical", 0),
    Sketcher.Constraint("Vertical", 4),
    Sketcher.Constraint("Horizontal", 5),
    Sketcher.Constraint("Horizontal", 1, 2, 2, 1),
    Sketcher.Constraint("Horizontal", 0, 2, 3, 2),
    Sketcher.Constraint("Vertical", 2, 3, 6, 3),
    Sketcher.Constraint("Radius", 2, 5.0),
    Sketcher.Constraint("Diameter", 6, 8.4),
    Sketcher.Constraint("DistanceX", 5, 2, 5, 1, 29.0),
    Sketcher.Constraint("DistanceY", 0, 2, 0, 1, 17.5),
    Sketcher.Constraint("DistanceY", -1, 1, 6, 3, 91.0),
    Sketcher.Constraint("DistanceX", -1, 1, 0, 2, 38.0),
    Sketcher.Constraint("DistanceY", -1, 1, 4, 2, 115.0),
    Sketcher.Constraint("DistanceY", -1, 1, 2, 3, 107.163229),
])
sketch11.setExpression("Constraints[12]", "Params.sketch11_radius")
sketch11.setExpression("Constraints[13]", "Params.sketch11_diameter")
sketch11.setExpression("Constraints[14]", "Params.sketch11_width")
sketch11.setExpression("Constraints[15]", "Params.sketch11_height")
pocket6 = body.newObject("PartDesign::Pocket", "Pocket005")
pocket6.Profile = sketch11
pocket6.setExpression("Length", "Params.pocket6_length")

doc.recompute()
